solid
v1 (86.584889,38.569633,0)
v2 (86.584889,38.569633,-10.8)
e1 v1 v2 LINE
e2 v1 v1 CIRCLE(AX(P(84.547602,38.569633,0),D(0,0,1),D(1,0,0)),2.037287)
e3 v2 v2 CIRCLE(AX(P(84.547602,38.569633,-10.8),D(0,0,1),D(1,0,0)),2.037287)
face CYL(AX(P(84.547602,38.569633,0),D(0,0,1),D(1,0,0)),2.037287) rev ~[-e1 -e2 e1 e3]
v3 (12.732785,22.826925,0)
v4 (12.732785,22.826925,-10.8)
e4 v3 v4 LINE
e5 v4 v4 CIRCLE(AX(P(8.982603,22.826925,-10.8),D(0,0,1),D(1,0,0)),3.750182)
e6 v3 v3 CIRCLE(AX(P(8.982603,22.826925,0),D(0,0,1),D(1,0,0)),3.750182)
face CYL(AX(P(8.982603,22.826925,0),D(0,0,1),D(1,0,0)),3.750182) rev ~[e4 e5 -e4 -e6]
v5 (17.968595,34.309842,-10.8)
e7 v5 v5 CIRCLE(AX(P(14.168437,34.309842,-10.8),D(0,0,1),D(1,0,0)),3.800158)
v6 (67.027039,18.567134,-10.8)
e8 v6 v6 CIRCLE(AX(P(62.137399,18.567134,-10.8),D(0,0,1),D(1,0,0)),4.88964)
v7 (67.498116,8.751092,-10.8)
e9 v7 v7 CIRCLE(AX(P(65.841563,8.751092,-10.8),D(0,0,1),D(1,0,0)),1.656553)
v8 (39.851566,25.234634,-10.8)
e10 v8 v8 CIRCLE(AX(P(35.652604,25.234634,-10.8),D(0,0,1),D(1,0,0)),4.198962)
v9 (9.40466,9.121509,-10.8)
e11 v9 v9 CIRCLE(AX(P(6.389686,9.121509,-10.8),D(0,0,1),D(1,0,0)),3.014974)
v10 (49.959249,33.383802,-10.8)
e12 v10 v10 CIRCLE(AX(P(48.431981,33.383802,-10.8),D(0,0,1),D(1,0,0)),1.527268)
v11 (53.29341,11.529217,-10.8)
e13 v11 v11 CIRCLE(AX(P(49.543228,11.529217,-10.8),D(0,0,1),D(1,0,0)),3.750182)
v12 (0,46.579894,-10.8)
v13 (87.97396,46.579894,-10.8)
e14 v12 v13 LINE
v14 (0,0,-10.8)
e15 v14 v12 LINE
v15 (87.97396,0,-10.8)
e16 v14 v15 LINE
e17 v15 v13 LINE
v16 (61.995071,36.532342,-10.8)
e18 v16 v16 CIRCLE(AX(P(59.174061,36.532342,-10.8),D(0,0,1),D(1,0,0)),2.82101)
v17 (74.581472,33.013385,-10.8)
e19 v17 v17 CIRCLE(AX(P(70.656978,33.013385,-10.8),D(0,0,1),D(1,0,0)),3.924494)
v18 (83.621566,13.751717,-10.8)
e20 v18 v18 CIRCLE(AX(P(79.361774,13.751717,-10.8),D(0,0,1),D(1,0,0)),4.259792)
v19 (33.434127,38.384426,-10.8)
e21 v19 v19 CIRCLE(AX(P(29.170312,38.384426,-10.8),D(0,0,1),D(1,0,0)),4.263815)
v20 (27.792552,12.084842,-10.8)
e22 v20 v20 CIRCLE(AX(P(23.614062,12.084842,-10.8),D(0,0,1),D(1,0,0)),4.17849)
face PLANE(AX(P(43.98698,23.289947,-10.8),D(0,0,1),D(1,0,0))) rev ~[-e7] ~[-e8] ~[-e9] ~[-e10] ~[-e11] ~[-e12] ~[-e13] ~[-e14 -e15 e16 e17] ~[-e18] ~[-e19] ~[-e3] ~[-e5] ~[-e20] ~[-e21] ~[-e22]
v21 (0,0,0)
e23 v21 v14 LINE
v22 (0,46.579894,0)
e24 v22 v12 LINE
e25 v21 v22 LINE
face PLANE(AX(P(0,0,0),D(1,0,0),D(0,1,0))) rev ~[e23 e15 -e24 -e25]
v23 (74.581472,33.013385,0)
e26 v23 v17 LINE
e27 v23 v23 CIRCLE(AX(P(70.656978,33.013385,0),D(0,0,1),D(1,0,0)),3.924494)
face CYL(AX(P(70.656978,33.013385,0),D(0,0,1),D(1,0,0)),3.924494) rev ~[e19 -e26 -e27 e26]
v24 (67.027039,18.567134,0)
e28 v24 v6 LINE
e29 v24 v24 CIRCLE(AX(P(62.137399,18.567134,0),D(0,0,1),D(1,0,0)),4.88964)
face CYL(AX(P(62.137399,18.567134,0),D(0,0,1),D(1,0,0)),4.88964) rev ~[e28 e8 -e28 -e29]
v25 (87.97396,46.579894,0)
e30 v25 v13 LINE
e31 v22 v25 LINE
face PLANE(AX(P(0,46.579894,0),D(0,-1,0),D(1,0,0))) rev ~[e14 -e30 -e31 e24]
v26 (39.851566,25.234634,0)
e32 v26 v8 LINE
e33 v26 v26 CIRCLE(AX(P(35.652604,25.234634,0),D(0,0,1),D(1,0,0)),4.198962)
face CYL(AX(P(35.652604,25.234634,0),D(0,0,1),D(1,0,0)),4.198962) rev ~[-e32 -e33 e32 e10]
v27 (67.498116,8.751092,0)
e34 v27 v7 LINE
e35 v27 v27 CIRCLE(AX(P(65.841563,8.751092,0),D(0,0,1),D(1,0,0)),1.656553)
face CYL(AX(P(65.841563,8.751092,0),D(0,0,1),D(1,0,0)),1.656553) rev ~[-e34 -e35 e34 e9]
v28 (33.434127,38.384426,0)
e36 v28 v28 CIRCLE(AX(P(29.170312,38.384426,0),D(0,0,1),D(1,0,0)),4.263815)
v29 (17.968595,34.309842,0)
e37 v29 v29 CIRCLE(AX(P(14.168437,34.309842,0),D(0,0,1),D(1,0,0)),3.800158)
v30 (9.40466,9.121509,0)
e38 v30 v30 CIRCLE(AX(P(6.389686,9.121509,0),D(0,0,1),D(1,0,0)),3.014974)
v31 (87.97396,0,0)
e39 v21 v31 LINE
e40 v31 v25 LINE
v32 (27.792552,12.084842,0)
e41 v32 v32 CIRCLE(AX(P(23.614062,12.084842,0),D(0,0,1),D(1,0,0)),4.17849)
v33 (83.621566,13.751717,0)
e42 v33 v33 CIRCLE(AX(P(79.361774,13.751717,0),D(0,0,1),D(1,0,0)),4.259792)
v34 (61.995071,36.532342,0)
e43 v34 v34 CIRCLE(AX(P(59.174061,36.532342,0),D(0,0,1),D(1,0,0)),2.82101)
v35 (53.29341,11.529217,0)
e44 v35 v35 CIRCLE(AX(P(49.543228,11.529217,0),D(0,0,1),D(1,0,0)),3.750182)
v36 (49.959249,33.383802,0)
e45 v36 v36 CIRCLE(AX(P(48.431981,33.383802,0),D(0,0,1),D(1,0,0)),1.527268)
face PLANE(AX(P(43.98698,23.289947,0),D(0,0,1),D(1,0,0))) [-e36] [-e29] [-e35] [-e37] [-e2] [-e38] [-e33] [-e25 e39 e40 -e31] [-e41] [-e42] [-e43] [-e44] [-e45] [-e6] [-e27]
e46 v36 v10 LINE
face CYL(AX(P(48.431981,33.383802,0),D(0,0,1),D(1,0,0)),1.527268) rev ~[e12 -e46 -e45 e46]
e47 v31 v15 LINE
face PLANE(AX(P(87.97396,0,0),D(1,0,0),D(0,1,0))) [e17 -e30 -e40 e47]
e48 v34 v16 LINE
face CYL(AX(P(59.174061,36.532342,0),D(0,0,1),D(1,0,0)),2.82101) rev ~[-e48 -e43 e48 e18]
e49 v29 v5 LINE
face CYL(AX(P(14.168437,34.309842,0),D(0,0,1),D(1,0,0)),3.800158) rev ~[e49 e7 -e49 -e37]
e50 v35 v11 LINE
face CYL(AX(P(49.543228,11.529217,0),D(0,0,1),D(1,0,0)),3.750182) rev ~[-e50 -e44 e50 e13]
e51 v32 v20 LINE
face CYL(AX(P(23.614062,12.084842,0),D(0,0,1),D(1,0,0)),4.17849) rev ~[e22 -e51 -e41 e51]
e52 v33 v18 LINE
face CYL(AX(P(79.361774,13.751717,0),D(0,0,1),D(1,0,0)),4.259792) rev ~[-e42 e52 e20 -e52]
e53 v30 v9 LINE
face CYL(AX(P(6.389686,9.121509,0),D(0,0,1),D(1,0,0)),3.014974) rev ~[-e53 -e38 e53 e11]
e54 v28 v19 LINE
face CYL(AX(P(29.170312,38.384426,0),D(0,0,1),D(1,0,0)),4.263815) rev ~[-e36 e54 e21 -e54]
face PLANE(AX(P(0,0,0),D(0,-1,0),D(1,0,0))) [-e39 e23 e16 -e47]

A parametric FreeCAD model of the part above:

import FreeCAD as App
import Part
import Sketcher

V = App.Vector

doc = App.newDocument("Part")
body = doc.addObject("PartDesign::Body", "Body")

sketch1 = body.newObject("Sketcher::SketchObject", "Sketch")
sketch1.AttachmentSupport = (doc.getObject("XY_Plane"), [""])
sketch1.MapMode = "FlatFace"
sketch1.addGeometry([
    Part.LineSegment(V(0, 47, 0), V(0, 0, 0)),
    Part.LineSegment(V(0, 0, 0), V(88, 0, 0)),
    Part.LineSegment(V(88, 0, 0), V(88, 47, 0)),
    Part.LineSegment(V(88, 47, 0), V(0, 47, 0)),
], False)
sketch1.addConstraint([
    Sketcher.Constraint("Coincident", 0, 2, 1, 1),
    Sketcher.Constraint("Coincident", 1, 2, 2, 1),
    Sketcher.Constraint("Coincident", 2, 2, 3, 1),
    Sketcher.Constraint("Coincident", 3, 2, 0, 1),
    Sketcher.Constraint("Vertical", 0),
    Sketcher.Constraint("Horizontal", 1),
    Sketcher.Constraint("Vertical", 2),
    Sketcher.Constraint("Horizontal", 3),
    Sketcher.Constraint("Coincident", 0, 2, -1, 1),
    Sketcher.Constraint("DistanceX", 1, 1, 1, 2, 87.97396),
    Sketcher.Constraint("DistanceY", 0, 2, 0, 1, 46.579894),
])
pad1 = body.newObject("PartDesign::Pad", "Pad")
pad1.Profile = sketch1
pad1.Length = 10.8
pad1.Reversed = True

sketch2 = body.newObject("Sketcher::SketchObject", "Sketch001")
sketch2.AttachmentSupport = (doc.getObject("XY_Plane"), [""])
sketch2.MapMode = "FlatFace"
sketch2.addGeometry([
    Part.Circle(V(29.2, 38.4, 0), V(0, 0, 1), 4.3),
    Part.Circle(V(35.7, 25.2, 0), V(0, 0, 1), 4.2),
    Part.Circle(V(9, 22.8, 0), V(0, 0, 1), 3.8),
    Part.Circle(V(14.2, 34.3, 0), V(0, 0, 1), 3.8),
    Part.Circle(V(23.6, 12.1, 0), V(0, 0, 1), 4.2),
    Part.Circle(V(6.4, 9.1, 0), V(0, 0, 1), 3),
    Part.Circle(V(49.5, 11.5, 0), V(0, 0, 1), 3.8),
    Part.Circle(V(62.1, 18.6, 0), V(0, 0, 1), 4.9),
    Part.Circle(V(70.7, 33, 0), V(0, 0, 1), 3.9),
    Part.Circle(V(84.5, 38.6, 0), V(0, 0, 1), 2),
    Part.Circle(V(59.2, 36.5, 0), V(0, 0, 1), 2.8),
    Part.Circle(V(48.4, 33.4, 0), V(0, 0, 1), 1.5),
    Part.Circle(V(65.8, 8.8, 0), V(0, 0, 1), 1.7),
    Part.Circle(V(79.4, 13.8, 0), V(0, 0, 1), 4.3),
], False)
sketch2.addConstraint([
    Sketcher.Constraint("Equal", 2, 6),
    Sketcher.Constraint("Diameter", 0, 8.52763),
    Sketcher.Constraint("Diameter", 4, 8.35698),
    Sketcher.Constraint("Diameter", 7, 9.77928),
    Sketcher.Constraint("Diameter", 8, 7.848988),
    Sketcher.Constraint("Diameter", 10, 5.64202),
    Sketcher.Constraint("DistanceX", 2, 3, 1, 3, 26.670001),
    Sketcher.Constraint("Diameter", 1, 8.397924),
    Sketcher.Constraint("Diameter", 2, 7.500364),
    Sketcher.Constraint("Diameter", 3, 7.600316),
    Sketcher.Constraint("Diameter", 5, 6.029948),
    Sketcher.Constraint("Diameter", 9, 4.074574),
    Sketcher.Constraint("Diameter", 11, 3.054536),
    Sketcher.Constraint("Diameter", 12, 3.313106),
    Sketcher.Constraint("Diameter", 13, 8.519584),
    Sketcher.Constraint("DistanceY", 4, 3, 3, 3, 22.225),
    Sketcher.Constraint("DistanceY", 1, 3, 9, 3, 13.334999),
    Sketcher.Constraint("DistanceX", -1, 1, 7, 3, 62.137399),
    Sketcher.Constraint("DistanceX", -1, 1, 9, 3, 84.547602),
    Sketcher.Constraint("DistanceY", 2, 3, 0, 3, 15.557501),
    Sketcher.Constraint("DistanceY", 7, 3, 1, 3, 6.6675),
    Sketcher.Constraint("DistanceX", 10, 3, 12, 3, 6.667502),
    Sketcher.Constraint("DistanceY", 6, 3, 13, 3, 2.2225),
    Sketcher.Constraint("DistanceX", -1, 1, 0, 3, 29.170312),
    Sketcher.Constraint("DistanceY", -1, 1, 5, 3, 9.121509),
    Sketcher.Constraint("DistanceX", -1, 1, 10, 3, 59.174061),
    Sketcher.Constraint("DistanceX", -1, 1, 11, 3, 48.431981),
    Sketcher.Constraint("DistanceX", 0, 3, 1, 3, 6.482292),
    Sketcher.Constraint("DistanceY", 1, 3, 0, 3, 13.149792),
    Sketcher.Constraint("DistanceY", 1, 3, 3, 3, 9.075208),
    Sketcher.Constraint("DistanceX", 4, 3, 1, 3, 12.038542),
    Sketcher.Constraint("DistanceX", 5, 3, 3, 3, 7.778751),
    Sketcher.Constraint("DistanceY", 6, 3, 0, 3, 26.855209),
    Sketcher.Constraint("DistanceX", 3, 3, 6, 3, 35.374791),
    Sketcher.Constraint("DistanceX", 6, 3, 7, 3, 12.594171),
    Sketcher.Constraint("DistanceX", 7, 3, 8, 3, 8.519579),
    Sketcher.Constraint("DistanceY", 7, 3, 8, 3, 14.446251),
    Sketcher.Constraint("DistanceY", 7, 3, 10, 3, 17.965208),
    Sketcher.Constraint("DistanceY", 11, 3, 10, 3, 3.14854),
    Sketcher.Constraint("DistanceY", 12, 3, 10, 3, 27.78125),
    Sketcher.Constraint("DistanceX", 12, 3, 13, 3, 13.520211),
    Sketcher.Constraint("DistanceY", -1, 1, 0, 3, 38.384426),
])
pocket1 = body.newObject("PartDesign::Pocket", "Pocket")
pocket1.Profile = sketch2
pocket1.Length = 25

doc.recompute()
